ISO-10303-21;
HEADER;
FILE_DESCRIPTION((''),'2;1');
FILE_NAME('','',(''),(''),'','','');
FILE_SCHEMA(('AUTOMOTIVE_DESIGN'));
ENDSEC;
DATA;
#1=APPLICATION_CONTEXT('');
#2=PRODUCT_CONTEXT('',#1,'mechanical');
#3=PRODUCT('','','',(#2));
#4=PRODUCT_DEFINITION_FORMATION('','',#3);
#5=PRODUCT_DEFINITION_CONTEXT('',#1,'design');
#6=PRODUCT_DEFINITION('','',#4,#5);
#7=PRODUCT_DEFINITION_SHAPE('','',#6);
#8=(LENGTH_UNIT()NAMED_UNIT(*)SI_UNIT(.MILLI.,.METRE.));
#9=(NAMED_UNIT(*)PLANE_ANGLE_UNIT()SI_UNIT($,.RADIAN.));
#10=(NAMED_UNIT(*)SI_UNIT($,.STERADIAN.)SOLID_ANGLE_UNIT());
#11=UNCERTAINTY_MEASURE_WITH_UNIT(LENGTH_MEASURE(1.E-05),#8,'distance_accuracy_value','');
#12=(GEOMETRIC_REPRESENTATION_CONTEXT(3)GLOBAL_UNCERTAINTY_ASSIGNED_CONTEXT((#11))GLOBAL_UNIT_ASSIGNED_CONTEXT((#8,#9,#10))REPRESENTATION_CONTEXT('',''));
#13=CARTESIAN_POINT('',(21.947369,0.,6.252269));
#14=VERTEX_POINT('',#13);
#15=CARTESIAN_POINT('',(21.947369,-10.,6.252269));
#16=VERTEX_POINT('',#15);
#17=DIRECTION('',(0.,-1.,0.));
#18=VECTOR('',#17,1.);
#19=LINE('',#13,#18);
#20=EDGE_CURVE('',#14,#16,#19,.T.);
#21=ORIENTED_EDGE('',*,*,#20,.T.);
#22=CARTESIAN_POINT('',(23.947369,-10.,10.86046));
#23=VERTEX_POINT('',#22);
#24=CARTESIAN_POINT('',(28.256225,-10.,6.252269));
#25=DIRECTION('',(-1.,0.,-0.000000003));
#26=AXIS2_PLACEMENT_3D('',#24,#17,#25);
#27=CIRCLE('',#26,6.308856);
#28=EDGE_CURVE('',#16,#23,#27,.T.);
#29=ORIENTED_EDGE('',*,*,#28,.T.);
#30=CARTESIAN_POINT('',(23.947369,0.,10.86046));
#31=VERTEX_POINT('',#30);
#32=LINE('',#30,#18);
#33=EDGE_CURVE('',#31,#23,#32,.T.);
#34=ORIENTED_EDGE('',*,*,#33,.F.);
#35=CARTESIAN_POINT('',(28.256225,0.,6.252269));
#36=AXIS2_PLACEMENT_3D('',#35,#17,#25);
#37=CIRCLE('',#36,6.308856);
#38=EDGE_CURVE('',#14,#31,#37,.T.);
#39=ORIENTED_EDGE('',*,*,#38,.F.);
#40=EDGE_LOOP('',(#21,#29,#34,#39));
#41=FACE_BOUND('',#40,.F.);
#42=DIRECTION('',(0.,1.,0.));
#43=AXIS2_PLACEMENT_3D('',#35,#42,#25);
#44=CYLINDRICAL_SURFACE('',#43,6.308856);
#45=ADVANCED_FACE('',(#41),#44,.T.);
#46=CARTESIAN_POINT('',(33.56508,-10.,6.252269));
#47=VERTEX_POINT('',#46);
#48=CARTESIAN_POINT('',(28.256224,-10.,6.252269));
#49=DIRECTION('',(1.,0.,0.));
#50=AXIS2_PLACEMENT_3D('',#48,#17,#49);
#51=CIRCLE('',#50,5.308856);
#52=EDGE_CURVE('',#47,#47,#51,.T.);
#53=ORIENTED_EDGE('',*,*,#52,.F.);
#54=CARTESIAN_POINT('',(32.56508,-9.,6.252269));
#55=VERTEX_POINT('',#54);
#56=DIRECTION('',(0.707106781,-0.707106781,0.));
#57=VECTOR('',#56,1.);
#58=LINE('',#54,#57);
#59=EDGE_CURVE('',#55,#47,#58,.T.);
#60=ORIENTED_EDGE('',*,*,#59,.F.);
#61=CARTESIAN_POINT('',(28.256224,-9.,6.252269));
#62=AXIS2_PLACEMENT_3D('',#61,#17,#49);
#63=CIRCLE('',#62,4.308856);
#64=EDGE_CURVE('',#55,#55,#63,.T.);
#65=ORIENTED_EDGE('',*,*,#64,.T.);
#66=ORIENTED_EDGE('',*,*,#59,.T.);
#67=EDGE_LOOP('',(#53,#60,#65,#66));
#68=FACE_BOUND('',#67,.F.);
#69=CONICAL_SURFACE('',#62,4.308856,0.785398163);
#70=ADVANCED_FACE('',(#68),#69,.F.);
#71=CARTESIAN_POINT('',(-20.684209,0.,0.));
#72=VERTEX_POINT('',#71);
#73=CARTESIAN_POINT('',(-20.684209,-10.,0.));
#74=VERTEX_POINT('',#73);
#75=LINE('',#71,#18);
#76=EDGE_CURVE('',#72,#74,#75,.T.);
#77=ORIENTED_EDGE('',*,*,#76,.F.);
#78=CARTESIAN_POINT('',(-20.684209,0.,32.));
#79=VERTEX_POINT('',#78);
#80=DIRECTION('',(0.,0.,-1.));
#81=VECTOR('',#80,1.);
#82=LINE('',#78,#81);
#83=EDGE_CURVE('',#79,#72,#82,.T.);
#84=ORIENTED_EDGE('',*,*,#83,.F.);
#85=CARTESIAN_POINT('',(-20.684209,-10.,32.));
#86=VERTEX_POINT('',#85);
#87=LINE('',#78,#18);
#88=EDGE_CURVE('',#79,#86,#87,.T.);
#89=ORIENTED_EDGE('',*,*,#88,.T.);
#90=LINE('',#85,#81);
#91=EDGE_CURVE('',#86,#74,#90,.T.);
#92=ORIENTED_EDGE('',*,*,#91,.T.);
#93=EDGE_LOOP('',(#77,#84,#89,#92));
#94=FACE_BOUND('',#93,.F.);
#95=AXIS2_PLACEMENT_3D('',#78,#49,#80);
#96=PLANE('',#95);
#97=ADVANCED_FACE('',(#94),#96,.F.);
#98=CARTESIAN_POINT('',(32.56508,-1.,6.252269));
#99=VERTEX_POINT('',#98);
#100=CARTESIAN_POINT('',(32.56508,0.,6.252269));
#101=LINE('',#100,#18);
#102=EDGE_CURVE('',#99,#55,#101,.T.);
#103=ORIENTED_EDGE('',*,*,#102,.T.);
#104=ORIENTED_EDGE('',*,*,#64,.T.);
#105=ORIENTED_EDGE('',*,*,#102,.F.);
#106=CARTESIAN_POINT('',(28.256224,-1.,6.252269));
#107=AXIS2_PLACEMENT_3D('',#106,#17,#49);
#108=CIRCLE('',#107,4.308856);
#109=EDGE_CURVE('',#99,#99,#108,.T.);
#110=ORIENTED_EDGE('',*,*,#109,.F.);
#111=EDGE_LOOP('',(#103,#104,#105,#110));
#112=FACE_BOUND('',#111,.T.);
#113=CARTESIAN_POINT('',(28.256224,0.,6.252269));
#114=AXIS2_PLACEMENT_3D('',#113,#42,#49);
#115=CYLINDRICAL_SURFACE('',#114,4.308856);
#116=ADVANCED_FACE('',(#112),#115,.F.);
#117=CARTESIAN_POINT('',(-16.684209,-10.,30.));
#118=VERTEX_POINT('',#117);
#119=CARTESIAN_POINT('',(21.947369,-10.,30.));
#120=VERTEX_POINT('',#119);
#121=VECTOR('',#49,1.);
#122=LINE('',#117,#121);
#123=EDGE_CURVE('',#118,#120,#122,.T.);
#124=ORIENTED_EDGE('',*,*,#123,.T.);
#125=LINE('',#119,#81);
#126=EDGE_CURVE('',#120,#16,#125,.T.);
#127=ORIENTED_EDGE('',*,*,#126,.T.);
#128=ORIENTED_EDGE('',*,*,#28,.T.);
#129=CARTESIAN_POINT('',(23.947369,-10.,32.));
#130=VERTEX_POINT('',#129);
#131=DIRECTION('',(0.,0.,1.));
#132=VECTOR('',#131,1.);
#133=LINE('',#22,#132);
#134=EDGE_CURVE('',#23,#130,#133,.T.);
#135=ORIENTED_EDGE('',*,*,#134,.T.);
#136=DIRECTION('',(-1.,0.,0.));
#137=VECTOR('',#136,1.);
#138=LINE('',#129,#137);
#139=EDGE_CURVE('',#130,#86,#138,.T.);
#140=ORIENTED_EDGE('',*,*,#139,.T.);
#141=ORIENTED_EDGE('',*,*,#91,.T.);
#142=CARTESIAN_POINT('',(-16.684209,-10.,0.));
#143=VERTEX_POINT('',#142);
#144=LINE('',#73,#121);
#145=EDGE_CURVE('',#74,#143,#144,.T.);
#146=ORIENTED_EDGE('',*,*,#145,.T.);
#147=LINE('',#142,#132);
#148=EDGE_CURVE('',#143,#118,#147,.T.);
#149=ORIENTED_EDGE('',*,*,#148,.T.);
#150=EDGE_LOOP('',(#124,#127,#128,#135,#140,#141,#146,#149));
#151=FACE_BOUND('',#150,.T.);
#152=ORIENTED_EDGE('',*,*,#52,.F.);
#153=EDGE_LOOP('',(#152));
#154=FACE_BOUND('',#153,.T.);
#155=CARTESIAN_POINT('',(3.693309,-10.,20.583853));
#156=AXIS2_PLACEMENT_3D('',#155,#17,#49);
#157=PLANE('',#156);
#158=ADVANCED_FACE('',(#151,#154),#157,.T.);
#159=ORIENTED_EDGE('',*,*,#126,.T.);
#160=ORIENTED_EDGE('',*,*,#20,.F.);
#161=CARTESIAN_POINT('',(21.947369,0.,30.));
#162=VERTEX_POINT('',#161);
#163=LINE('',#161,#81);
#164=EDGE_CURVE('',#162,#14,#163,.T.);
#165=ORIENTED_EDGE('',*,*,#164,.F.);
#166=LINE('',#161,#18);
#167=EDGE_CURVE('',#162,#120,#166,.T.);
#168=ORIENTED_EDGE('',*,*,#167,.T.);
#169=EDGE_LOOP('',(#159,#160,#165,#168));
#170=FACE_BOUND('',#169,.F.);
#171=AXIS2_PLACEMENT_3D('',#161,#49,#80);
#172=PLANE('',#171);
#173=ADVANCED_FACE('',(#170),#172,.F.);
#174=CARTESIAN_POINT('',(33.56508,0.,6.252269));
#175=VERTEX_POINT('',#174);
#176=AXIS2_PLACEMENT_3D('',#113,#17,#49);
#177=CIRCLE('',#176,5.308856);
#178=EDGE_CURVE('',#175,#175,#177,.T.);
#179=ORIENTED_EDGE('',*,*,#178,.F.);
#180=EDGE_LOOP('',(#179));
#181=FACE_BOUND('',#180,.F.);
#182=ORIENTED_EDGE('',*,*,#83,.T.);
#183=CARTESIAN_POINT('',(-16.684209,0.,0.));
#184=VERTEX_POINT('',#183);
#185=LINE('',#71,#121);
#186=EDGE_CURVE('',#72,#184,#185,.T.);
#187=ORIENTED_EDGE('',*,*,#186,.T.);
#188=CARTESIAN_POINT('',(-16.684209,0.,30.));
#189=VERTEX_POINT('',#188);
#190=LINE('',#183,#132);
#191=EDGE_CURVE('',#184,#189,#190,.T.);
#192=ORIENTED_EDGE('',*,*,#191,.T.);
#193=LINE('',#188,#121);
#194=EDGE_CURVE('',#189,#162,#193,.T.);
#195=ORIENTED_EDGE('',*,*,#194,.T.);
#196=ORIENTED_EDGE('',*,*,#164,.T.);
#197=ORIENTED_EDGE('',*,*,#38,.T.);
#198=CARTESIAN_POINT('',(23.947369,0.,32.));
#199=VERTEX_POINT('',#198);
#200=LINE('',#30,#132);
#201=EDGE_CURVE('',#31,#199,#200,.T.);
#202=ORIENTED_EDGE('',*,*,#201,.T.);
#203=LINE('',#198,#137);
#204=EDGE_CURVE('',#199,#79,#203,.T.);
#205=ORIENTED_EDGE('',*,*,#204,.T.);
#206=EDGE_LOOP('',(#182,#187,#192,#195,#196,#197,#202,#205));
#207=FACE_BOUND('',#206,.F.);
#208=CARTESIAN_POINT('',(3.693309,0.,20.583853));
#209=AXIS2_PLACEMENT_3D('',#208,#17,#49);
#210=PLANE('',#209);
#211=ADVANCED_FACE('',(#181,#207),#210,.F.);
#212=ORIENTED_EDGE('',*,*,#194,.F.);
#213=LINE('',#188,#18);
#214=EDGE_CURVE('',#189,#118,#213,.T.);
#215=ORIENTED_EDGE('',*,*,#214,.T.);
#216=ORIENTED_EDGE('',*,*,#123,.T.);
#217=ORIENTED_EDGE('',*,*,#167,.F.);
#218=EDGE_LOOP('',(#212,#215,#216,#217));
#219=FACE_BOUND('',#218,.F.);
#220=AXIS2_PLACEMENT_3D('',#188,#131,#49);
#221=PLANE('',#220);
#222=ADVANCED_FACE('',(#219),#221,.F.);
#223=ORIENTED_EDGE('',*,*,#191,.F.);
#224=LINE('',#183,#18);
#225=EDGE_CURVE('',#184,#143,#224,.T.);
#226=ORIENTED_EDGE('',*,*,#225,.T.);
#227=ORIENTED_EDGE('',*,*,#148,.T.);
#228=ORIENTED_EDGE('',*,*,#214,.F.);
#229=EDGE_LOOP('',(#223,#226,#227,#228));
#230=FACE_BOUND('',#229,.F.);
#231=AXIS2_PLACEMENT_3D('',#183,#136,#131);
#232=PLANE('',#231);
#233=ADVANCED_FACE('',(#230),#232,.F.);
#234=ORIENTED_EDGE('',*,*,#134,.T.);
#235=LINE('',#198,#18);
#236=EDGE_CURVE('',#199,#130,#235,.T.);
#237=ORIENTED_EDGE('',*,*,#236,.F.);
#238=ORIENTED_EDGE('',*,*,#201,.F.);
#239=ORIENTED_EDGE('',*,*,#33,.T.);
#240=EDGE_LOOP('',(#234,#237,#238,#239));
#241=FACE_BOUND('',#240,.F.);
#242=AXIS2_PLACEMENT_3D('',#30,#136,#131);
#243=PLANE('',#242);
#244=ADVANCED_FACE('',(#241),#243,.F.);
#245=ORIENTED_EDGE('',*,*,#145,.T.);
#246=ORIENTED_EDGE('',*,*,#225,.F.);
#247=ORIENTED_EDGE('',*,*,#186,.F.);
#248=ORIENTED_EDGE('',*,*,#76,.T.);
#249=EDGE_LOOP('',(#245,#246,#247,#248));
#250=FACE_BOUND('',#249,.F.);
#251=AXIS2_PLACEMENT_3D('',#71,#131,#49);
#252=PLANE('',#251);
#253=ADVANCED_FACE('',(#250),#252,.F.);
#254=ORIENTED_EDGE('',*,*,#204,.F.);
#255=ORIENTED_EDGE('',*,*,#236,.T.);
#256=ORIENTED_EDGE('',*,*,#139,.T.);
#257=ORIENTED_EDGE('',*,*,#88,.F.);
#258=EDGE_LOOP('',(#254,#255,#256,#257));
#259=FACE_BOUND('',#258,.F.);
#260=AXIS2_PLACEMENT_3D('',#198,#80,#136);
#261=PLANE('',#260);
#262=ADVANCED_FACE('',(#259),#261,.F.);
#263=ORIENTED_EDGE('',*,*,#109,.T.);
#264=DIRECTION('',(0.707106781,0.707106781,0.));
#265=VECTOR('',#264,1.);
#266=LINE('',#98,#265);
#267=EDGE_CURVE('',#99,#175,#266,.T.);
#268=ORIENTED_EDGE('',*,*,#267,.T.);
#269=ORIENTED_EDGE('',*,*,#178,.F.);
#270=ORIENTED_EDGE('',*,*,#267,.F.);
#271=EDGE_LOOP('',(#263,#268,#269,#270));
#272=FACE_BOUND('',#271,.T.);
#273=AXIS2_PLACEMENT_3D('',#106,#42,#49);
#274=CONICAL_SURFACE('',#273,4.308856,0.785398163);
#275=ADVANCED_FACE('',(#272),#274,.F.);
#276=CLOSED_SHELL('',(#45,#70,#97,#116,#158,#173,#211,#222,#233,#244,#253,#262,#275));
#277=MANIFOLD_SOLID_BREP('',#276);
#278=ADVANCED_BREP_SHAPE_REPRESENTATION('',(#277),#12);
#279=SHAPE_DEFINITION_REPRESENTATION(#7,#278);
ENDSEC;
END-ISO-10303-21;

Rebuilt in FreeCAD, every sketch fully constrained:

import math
import FreeCAD as App
import Part
import Sketcher

V = App.Vector


def edges_at(feature, points):
    """Names of the edges that pass closest to the given points."""
    edges = feature.Shape.Edges
    near = lambda p: min(range(len(edges)), key=lambda i: edges[i].distToShape(Part.Vertex(*p))[0])
    return sorted({f"Edge{near(p) + 1}" for p in points})

doc = App.newDocument("Part")
body = doc.addObject("PartDesign::Body", "Body")

# Sketch on XZ plane
sketch1 = body.newObject("Sketcher::SketchObject", "Sketch")
sketch1.AttachmentSupport = (doc.getObject("XZ_Plane"), [""])
sketch1.MapMode = "FlatFace"
sketch1.addGeometry([
    Part.LineSegment(V(-20.7, 0, 0), V(-16.7, 0, 0)),  # 0
    Part.LineSegment(V(-16.7, 0, 0), V(-16.7, 30, 0)),  # 1
    Part.LineSegment(V(-16.7, 30, 0), V(21.9, 30, 0)),  # 2
    Part.LineSegment(V(21.9, 30, 0), V(21.9, 6.3, 0)),  # 3
    Part.ArcOfCircle(Part.Circle(V(28.3, 6.3, 0), V(0, 0, 1), 6.3), math.radians(-180), math.radians(133)),  # 4
    Part.LineSegment(V(23.9, 10.9, 0), V(23.9, 32, 0)),  # 5
    Part.LineSegment(V(23.9, 32, 0), V(-20.7, 32, 0)),  # 6
    Part.LineSegment(V(-20.7, 32, 0), V(-20.7, 0, 0)),  # 7
    Part.Circle(V(28.3, 6.3, 0), V(0, 0, 1), 4.3),  # 8
], False)
sketch1.addConstraint([
    Sketcher.Constraint("Coincident", 0, 2, 1, 1),
    Sketcher.Constraint("Coincident", 1, 2, 2, 1),
    Sketcher.Constraint("Coincident", 2, 2, 3, 1),
    Sketcher.Constraint("Tangent", 3, 2, 4, 1),
    Sketcher.Constraint("Coincident", 4, 2, 5, 1),
    Sketcher.Constraint("Coincident", 5, 2, 6, 1),
    Sketcher.Constraint("Coincident", 6, 2, 7, 1),
    Sketcher.Constraint("Coincident", 7, 2, 0, 1),
    Sketcher.Constraint("Horizontal", 0),
    Sketcher.Constraint("Vertical", 1),
    Sketcher.Constraint("Horizontal", 2),
    Sketcher.Constraint("Vertical", 3),
    Sketcher.Constraint("Vertical", 5),
    Sketcher.Constraint("Horizontal", 6),
    Sketcher.Constraint("Vertical", 7),
    Sketcher.Constraint("Coincident", 8, 3, 4, 3),
    Sketcher.Constraint("PointOnObject", 0, 2, -1),
    Sketcher.Constraint("DistanceX", 0, 1, 0, 2, 4.0),
    Sketcher.Constraint("DistanceY", 1, 1, 1, 2, 30.0),
    Sketcher.Constraint("DistanceY", 7, 2, 7, 1, 32.0),
    Sketcher.Constraint("DistanceX", 3, 2, 4, 2, 2.0),
    Sketcher.Constraint("Diameter", 8, 8.617712),
    Sketcher.Constraint("Radius", 4, 6.308856),
    Sketcher.Constraint("DistanceY", 3, 2, 3, 1, 23.747731),
    Sketcher.Constraint("DistanceX", 2, 1, 2, 2, 38.631578),
    Sketcher.Constraint("DistanceX", 0, 2, -1, 1, 16.684209),
])
pad1 = body.newObject("PartDesign::Pad", "Pad")
pad1.Profile = sketch1
pad1.Length = 10
doc.recompute()

chamfer = body.newObject("PartDesign::Chamfer", "Chamfer")
chamfer.Base = (pad1, edges_at(pad1, [(23.947, -10, 6.252), (23.947, 0, 6.252)]))
chamfer.Size = 1

doc.recompute()
